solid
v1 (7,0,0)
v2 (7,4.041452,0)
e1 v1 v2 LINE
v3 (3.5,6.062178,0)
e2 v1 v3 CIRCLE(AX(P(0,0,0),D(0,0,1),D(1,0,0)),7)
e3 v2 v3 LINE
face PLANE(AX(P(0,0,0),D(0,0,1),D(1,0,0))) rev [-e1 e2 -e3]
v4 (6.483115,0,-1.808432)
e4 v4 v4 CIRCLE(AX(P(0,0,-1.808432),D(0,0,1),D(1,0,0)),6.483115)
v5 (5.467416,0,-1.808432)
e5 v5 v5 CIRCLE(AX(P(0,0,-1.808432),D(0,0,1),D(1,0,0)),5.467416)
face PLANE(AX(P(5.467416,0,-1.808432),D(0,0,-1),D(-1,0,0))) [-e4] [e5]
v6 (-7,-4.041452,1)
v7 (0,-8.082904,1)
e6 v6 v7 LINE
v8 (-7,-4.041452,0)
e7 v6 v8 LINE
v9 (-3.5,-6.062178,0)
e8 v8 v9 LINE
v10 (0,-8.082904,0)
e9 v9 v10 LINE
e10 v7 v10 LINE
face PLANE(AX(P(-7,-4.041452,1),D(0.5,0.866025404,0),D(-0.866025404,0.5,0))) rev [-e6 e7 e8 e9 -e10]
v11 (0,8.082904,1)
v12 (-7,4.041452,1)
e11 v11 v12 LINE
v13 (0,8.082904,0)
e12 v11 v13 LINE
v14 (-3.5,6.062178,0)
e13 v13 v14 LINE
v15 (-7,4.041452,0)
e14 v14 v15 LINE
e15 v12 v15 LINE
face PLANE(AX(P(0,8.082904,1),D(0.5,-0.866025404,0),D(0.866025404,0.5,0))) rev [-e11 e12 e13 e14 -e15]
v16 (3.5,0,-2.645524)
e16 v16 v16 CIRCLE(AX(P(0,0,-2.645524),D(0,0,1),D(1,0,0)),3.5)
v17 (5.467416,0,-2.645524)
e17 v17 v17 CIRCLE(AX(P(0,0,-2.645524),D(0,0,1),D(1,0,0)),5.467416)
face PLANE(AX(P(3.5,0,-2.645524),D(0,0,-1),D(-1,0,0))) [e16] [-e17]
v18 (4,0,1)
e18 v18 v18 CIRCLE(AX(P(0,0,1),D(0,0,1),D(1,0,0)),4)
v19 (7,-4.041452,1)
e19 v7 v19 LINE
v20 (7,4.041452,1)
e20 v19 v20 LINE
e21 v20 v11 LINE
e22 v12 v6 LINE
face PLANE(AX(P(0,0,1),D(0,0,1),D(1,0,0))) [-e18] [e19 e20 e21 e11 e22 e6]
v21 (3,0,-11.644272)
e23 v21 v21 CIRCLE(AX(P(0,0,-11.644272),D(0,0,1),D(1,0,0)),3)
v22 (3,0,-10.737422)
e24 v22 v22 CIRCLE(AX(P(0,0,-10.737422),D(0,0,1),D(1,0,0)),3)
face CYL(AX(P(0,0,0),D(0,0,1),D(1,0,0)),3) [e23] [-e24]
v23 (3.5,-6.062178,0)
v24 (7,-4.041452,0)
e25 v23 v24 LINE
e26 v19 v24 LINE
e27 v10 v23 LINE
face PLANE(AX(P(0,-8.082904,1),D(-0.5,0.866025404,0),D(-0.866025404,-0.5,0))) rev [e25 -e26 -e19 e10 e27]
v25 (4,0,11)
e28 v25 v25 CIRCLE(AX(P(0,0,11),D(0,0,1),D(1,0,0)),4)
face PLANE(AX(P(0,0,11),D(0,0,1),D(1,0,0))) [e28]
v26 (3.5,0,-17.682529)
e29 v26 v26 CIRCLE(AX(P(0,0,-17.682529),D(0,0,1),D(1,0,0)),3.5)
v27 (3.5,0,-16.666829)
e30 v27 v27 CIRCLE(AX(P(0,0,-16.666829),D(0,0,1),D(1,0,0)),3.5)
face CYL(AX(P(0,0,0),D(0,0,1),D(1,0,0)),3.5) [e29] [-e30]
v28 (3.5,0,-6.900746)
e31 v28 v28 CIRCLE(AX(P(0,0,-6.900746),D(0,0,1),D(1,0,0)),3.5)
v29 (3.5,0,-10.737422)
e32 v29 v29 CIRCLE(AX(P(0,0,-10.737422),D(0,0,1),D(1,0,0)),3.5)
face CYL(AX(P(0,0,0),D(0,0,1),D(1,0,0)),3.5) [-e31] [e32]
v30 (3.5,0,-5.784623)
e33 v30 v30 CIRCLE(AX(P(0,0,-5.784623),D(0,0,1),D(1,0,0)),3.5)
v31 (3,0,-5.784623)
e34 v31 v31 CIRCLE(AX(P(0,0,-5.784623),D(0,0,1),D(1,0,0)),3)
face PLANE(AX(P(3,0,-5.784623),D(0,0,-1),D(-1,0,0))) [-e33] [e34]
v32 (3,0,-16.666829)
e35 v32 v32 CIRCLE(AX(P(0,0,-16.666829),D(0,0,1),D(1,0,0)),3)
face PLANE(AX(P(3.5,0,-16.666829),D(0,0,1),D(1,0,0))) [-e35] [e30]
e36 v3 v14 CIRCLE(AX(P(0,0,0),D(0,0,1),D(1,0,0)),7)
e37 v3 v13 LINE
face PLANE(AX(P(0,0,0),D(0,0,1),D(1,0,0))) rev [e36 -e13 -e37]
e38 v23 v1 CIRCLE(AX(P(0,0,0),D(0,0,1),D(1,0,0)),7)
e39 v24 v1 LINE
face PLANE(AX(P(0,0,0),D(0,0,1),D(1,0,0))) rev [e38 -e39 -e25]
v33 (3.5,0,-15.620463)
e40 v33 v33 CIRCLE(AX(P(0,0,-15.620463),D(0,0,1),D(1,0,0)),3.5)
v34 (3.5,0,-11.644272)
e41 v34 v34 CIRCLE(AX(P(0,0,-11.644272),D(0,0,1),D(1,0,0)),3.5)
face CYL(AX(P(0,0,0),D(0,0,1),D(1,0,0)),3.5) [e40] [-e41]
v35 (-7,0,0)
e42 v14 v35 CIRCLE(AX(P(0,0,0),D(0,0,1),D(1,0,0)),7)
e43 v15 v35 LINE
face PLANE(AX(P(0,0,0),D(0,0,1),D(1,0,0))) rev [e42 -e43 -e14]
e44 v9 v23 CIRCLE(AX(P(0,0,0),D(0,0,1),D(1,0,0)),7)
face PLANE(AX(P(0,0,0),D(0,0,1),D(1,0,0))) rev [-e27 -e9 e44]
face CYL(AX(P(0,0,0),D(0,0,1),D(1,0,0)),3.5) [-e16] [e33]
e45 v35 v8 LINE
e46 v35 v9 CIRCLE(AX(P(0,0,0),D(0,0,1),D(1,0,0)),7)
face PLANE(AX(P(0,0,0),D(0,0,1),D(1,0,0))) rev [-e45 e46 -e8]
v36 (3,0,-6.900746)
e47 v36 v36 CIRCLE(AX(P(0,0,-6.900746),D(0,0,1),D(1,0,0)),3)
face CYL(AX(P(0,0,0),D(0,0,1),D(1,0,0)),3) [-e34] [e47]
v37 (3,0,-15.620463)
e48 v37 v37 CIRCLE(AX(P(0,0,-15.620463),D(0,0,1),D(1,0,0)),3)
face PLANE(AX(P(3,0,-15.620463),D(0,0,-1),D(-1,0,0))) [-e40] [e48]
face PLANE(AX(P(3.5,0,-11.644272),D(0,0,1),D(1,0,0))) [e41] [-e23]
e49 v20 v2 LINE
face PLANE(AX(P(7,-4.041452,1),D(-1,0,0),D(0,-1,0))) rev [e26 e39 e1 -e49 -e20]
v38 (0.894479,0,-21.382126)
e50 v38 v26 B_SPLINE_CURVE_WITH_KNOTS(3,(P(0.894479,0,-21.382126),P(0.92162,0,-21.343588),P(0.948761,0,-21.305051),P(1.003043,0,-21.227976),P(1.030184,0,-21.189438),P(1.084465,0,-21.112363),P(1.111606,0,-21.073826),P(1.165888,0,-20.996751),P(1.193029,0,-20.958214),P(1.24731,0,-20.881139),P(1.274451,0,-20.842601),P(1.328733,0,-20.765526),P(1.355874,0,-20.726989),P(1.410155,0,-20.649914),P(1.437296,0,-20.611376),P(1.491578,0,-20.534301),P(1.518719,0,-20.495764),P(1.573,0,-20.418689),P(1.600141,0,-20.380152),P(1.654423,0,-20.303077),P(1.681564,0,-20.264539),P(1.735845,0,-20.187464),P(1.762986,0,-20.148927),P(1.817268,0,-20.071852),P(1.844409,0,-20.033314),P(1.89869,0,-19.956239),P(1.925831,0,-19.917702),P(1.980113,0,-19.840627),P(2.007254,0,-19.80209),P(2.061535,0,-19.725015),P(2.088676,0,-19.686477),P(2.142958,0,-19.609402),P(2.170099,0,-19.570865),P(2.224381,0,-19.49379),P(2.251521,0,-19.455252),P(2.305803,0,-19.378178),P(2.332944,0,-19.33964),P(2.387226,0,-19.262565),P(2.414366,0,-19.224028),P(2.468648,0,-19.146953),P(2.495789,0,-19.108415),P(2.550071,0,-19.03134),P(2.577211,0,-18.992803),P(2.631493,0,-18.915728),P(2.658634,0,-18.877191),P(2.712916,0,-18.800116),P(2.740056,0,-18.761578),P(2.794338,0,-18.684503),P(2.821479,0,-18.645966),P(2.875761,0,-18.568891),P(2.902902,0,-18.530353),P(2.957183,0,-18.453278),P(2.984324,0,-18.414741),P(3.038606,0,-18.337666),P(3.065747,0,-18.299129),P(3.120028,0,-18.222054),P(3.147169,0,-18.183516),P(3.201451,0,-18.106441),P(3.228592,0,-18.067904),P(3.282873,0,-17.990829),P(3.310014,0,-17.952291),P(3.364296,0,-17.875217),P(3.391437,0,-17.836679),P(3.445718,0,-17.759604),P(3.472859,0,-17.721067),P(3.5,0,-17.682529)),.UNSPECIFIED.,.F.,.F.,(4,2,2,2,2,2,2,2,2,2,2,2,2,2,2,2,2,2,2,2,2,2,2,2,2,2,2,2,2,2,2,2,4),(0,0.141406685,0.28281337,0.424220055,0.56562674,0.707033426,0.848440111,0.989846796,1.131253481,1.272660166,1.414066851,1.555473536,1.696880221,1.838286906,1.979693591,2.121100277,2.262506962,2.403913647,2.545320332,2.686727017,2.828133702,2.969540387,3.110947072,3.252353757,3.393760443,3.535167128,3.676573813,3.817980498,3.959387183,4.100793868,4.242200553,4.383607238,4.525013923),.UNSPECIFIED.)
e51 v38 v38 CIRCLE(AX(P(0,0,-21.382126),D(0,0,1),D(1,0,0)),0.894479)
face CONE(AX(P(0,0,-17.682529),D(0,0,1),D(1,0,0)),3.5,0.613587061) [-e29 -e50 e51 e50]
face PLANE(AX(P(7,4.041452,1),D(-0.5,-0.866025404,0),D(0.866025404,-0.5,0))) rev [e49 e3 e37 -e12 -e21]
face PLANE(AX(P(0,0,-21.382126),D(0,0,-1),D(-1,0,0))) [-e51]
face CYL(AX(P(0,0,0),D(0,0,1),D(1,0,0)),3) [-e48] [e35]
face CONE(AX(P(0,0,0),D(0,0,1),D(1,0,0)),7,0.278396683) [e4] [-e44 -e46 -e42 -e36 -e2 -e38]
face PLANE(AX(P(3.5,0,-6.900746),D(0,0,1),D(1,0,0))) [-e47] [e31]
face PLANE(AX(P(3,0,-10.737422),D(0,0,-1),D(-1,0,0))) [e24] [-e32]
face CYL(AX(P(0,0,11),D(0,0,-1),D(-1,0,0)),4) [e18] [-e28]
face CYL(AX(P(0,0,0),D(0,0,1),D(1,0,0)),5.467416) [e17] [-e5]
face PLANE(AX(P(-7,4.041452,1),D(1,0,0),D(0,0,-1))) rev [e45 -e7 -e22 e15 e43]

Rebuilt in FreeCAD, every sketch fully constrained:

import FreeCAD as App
import Part
import Sketcher

V = App.Vector
Q = App.Units.Quantity


def add_polygon(sketch, points):
    """Adds a closed chain of lines whose ends are joined by coincident constraints."""
    first, n = sketch.GeometryCount, len(points)
    for a, b in zip(points, points[1:] + points[:1]):
        sketch.addGeometry(Part.LineSegment(App.Vector(*a, 0), App.Vector(*b, 0)), False)
    for i in range(n):
        sketch.addConstraint(Sketcher.Constraint("Coincident", first + i, 2, first + (i + 1) % n, 1))

doc = App.newDocument("Part")
body = doc.addObject("PartDesign::Body", "Body")

# Sketch on XY plane
sketch1 = doc.addObject("Sketcher::SketchObject", "Sketch")
body.addObject(sketch1)
sketch1.AttachmentSupport = (doc.XY_Plane, [""])
sketch1.MapMode = "FlatFace"
add_polygon(sketch1, [(0, -8.082904), (7, -4.041452), (7, 4.041452), (0, 8.082904), (-7, 4.041452), (-7, -4.041452)])  # lines 0-5
sketch1.addConstraint([
    Sketcher.Constraint("Vertical", 1),
    Sketcher.Constraint("Vertical", 4),
    Sketcher.Constraint("Symmetric", 0, 2, 3, 2, -1, 1),
    Sketcher.Constraint("Symmetric", 2, 2, 5, 2, -1, 1),
    Sketcher.Constraint("PointOnObject", 2, 2, -2),
    Sketcher.Constraint("Parallel", 2, 5),
    Sketcher.Constraint("Horizontal", 1, 2, 3, 2),
    Sketcher.Constraint("Angle", 0, Q("30 deg")),
    Sketcher.Constraint("DistanceX", -1, 1, 0, 2, Q("7 mm")),
    Sketcher.Constraint("DistanceY", 1, 1, 1, 2, Q("8.082904 mm")),
])
pad1 = doc.addObject("PartDesign::Pad", "Pad")
body.addObject(pad1)
pad1.Profile = sketch1
pad1.Length = 1

# Sketch on XY plane
sketch2 = doc.addObject("Sketcher::SketchObject", "Sketch001")
body.addObject(sketch2)
sketch2.AttachmentSupport = (doc.XY_Plane, [""])
sketch2.MapMode = "FlatFace"
sketch2.AttachmentOffset = App.Placement(V(0, 0, 1), App.Rotation())
sketch2.addGeometry(Part.Circle(V(0, 0, 0), V(0, 0, 1), 4), False)
sketch2.addConstraint([
    Sketcher.Constraint("Coincident", 0, 3, -1, 1),
    Sketcher.Constraint("Diameter", 0, Q("8 mm")),
])
pad2 = doc.addObject("PartDesign::Pad", "Pad001")
body.addObject(pad2)
pad2.Profile = sketch2
pad2.Length = 10

# Sketch on XZ plane
sketch3 = doc.addObject("Sketcher::SketchObject", "Sketch002")
body.addObject(sketch3)
sketch3.AttachmentSupport = (doc.XZ_Plane, [""])
sketch3.MapMode = "FlatFace"
add_polygon(sketch3, [(0.894479, -21.382126), (0, -21.382126), (0, 0), (7, 0), (6.483115, -1.808432), (5.467416, -1.808432), (5.467416, -2.645524), (3.5, -2.645524), (3.5, -5.784623), (3, -5.784623), (3, -6.900746), (3.5, -6.900746), (3.5, -10.737422), (3, -10.737422), (3, -11.644272), (3.5, -11.644272), (3.5, -15.620463), (3, -15.620463), (3, -16.666829), (3.5, -16.666829), (3.5, -17.682529)])  # lines 0-20
sketch3.addConstraint([
    Sketcher.Constraint("Horizontal", 0),
    Sketcher.Constraint("Vertical", 1),
    Sketcher.Constraint("Horizontal", 2),
    Sketcher.Constraint("Horizontal", 4),
    Sketcher.Constraint("Vertical", 5),
    Sketcher.Constraint("Horizontal", 6),
    Sketcher.Constraint("Vertical", 7),
    Sketcher.Constraint("Horizontal", 8),
    Sketcher.Constraint("Vertical", 9),
    Sketcher.Constraint("Horizontal", 10),
    Sketcher.Constraint("Vertical", 11),
    Sketcher.Constraint("Horizontal", 12),
    Sketcher.Constraint("Vertical", 13),
    Sketcher.Constraint("Horizontal", 14),
    Sketcher.Constraint("Vertical", 15),
    Sketcher.Constraint("Horizontal", 16),
    Sketcher.Constraint("Vertical", 17),
    Sketcher.Constraint("Horizontal", 18),
    Sketcher.Constraint("Vertical", 19),
    Sketcher.Constraint("Coincident", 1, 2, -1, 1),
    Sketcher.Constraint("Vertical", 7, 2, 10, 2),
    Sketcher.Constraint("Vertical", 9, 2, 12, 2),
    Sketcher.Constraint("Vertical", 11, 2, 14, 2),
    Sketcher.Constraint("Vertical", 13, 2, 16, 2),
    Sketcher.Constraint("Vertical", 15, 2, 18, 2),
    Sketcher.Constraint("Equal", 4, 19),
    Sketcher.Constraint("DistanceX", 2, 1, 2, 2, Q("7 mm")),
    Sketcher.Constraint("DistanceX", 8, 2, 8, 1, Q("0.5 mm")),
    Sketcher.Constraint("DistanceX", -1, 1, 8, 2, Q("3 mm")),
    Sketcher.Constraint("DistanceX", 4, 2, 4, 1, Q("1.0157 mm")),
    Sketcher.Constraint("DistanceY", 7, 2, 7, 1, Q("3.139098 mm")),
    Sketcher.Constraint("DistanceX", 0, 2, 0, 1, Q("0.894479 mm")),
    Sketcher.Constraint("DistanceY", 13, 2, 13, 1, Q("0.906851 mm")),
    Sketcher.Constraint("DistanceY", 15, 2, 15, 1, Q("3.976191 mm")),
    Sketcher.Constraint("DistanceY", 0, 2, 5, 2, Q("18.736601 mm")),
    Sketcher.Constraint("DistanceY", 11, 2, 7, 2, Q("4.952799 mm")),
    Sketcher.Constraint("Distance", 3, Q("1.880849 mm")),
    Sketcher.Constraint("DistanceX", 6, 2, 6, 1, Q("1.967416 mm")),
    Sketcher.Constraint("DistanceY", 1, 1, 1, 2, Q("21.382126 mm")),
    Sketcher.Constraint("DistanceY", 9, 2, 9, 1, Q("1.116124 mm")),
    Sketcher.Constraint("DistanceY", 17, 2, 17, 1, Q("1.046366 mm")),
])
revolution = doc.addObject("PartDesign::Revolution", "Revolution")
body.addObject(revolution)
revolution.Profile = sketch3
revolution.ReferenceAxis = (sketch3, ["V_Axis"])
revolution.Angle = 360

doc.recompute()
